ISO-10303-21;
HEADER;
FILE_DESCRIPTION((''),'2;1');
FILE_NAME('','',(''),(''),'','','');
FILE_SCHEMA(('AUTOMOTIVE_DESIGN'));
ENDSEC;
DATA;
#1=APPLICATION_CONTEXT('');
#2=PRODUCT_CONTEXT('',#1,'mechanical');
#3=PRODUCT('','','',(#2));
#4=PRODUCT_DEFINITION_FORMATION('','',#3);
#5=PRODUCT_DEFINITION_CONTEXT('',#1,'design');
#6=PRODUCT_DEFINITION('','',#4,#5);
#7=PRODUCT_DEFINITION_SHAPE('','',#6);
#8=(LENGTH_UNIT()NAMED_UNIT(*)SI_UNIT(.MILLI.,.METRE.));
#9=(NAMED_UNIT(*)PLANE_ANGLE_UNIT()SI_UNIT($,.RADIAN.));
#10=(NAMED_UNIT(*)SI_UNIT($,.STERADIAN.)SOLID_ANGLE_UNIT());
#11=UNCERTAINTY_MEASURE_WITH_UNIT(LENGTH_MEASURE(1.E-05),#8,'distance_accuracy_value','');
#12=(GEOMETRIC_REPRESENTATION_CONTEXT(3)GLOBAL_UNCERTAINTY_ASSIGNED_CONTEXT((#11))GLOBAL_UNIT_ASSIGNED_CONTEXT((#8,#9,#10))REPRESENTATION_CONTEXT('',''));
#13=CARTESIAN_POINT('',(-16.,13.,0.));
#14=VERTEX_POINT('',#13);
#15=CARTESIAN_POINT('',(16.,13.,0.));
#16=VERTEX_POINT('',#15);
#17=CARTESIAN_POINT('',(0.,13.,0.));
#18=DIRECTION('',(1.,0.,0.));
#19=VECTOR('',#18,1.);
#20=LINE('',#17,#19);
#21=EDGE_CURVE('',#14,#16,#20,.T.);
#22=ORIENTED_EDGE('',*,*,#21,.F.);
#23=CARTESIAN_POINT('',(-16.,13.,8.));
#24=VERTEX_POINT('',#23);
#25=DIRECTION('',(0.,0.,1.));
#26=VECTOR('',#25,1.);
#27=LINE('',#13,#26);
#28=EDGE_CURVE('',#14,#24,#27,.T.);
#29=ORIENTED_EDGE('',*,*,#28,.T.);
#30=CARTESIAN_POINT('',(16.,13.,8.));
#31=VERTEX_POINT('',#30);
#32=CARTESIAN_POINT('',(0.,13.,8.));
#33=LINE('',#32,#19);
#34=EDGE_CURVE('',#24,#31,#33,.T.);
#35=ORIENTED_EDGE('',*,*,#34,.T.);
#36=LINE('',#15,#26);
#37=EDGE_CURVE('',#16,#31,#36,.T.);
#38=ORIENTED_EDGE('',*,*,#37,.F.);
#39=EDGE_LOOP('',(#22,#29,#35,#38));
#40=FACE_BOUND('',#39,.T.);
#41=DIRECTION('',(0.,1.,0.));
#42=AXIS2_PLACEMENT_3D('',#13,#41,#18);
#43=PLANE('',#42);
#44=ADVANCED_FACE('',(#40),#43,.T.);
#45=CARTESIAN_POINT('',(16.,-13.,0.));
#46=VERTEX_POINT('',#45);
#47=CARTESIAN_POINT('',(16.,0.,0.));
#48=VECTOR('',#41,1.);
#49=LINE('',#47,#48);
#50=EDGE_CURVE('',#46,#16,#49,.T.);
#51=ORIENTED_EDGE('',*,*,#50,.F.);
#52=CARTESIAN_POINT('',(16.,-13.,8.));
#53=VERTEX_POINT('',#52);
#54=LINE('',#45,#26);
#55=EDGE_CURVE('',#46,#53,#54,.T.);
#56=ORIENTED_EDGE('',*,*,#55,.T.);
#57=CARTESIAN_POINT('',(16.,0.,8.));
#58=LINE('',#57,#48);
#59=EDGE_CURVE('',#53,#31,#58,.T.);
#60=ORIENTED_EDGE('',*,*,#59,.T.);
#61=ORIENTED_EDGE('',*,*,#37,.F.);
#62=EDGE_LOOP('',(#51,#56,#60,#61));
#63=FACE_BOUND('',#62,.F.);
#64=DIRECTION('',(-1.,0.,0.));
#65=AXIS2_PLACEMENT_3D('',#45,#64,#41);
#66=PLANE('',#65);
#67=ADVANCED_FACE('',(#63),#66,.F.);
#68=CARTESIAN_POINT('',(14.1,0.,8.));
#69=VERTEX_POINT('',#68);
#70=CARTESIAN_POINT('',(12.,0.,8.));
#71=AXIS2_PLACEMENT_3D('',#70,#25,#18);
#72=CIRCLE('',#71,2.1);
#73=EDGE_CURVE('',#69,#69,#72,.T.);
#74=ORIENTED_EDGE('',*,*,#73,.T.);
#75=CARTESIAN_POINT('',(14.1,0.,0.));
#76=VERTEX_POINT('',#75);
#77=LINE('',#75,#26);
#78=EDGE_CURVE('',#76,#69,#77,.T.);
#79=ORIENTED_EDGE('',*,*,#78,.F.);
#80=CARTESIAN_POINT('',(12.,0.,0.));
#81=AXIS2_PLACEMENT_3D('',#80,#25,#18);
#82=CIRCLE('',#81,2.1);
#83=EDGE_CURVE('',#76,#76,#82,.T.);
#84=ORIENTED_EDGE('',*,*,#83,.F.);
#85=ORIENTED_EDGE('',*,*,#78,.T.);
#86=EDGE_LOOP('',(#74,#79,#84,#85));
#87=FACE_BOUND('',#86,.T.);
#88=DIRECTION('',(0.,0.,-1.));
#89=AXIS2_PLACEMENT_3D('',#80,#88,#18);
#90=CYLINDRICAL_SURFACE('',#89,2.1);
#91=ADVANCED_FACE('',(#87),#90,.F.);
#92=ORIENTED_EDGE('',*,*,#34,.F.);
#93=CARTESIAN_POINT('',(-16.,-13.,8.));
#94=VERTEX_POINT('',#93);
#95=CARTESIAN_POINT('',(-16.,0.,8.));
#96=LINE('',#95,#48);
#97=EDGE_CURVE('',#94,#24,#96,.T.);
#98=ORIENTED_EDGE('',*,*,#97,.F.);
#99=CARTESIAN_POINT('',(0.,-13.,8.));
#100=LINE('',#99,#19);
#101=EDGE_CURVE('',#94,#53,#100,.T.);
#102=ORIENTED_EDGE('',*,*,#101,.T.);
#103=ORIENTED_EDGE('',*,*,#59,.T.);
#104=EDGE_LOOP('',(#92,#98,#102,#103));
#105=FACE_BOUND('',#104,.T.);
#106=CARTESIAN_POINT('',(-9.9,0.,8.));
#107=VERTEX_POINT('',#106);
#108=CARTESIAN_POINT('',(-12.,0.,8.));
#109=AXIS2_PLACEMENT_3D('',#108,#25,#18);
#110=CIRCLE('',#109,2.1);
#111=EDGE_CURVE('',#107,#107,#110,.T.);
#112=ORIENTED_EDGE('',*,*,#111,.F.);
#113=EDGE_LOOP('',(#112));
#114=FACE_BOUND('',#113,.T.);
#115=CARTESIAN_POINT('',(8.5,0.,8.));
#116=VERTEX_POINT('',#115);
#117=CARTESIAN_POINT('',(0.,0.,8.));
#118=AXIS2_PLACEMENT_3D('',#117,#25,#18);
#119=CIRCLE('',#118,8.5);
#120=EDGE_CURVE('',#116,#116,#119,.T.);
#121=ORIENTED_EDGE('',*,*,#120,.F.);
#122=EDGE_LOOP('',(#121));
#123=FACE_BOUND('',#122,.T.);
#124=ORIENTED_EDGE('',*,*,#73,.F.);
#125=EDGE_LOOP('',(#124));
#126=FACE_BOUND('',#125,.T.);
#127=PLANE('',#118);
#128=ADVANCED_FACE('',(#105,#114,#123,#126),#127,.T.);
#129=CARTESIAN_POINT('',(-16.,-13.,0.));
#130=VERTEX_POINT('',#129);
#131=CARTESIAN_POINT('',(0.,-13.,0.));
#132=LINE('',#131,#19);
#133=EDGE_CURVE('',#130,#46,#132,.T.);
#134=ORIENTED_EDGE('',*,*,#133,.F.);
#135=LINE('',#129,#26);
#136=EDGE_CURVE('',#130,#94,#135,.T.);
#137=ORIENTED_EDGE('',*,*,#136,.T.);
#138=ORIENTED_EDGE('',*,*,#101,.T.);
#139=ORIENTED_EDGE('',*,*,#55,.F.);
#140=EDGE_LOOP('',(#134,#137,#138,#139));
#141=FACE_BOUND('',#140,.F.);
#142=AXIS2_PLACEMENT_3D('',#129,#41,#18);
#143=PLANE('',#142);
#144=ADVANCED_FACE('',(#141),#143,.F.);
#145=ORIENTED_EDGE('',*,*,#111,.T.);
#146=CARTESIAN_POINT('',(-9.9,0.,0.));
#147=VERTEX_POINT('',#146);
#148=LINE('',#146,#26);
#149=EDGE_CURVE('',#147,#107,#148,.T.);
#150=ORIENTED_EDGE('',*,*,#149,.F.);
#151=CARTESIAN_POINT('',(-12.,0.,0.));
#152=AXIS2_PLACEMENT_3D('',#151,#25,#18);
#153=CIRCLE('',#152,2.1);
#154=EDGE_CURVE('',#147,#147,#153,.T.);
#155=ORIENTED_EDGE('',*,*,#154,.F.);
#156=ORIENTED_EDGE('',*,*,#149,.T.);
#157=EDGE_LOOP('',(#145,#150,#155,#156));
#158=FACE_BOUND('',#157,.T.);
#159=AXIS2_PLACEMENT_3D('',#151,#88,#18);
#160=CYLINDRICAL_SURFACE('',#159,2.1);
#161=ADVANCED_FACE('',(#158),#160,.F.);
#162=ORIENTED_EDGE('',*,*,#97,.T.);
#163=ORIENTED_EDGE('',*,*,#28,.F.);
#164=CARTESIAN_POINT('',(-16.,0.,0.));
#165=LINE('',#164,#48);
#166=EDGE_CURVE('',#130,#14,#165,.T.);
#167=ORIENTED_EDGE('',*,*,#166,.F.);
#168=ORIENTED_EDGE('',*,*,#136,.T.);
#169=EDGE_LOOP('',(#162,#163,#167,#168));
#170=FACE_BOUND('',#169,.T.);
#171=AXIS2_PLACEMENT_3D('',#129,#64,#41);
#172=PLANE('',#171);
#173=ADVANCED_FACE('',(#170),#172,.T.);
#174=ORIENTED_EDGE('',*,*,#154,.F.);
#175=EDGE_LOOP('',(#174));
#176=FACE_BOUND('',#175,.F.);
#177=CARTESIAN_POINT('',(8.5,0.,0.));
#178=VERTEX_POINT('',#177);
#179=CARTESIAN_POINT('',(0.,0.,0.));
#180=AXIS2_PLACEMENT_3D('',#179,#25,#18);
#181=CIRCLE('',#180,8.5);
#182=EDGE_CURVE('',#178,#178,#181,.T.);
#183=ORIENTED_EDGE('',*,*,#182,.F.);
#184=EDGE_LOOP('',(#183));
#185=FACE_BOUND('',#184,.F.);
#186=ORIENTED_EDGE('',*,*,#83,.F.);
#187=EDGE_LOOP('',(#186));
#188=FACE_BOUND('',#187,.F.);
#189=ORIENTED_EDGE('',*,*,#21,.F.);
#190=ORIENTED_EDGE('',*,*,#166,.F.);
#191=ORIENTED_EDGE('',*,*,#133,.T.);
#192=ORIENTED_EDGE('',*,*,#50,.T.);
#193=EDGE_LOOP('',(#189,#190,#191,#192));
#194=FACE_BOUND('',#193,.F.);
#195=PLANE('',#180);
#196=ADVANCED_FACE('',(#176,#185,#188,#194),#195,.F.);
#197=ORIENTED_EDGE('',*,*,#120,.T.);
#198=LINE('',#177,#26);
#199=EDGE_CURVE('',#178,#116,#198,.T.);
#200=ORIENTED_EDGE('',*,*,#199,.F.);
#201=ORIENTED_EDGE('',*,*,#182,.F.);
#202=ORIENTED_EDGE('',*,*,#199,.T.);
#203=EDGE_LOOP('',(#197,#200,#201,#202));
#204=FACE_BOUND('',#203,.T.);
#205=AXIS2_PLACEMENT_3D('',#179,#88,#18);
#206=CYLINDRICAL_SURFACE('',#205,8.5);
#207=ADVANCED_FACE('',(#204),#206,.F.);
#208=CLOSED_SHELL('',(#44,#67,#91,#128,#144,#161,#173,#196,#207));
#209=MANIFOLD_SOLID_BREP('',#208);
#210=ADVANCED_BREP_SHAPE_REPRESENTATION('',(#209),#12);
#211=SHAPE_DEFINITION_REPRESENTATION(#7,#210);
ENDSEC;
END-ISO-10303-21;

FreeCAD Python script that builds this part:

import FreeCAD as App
import Part
import Sketcher

V = App.Vector

doc = App.newDocument("Part")
body = doc.addObject("PartDesign::Body", "Body")

# Sketch on XY plane
sketch1 = body.newObject("Sketcher::SketchObject", "Sketch")
sketch1.AttachmentSupport = (doc.getObject("XY_Plane"), [""])
sketch1.MapMode = "FlatFace"
sketch1.addGeometry([
    Part.LineSegment(V(-16, 13, 0), V(-16, -13, 0)),  # 0
    Part.LineSegment(V(-16, -13, 0), V(16, -13, 0)),  # 1
    Part.LineSegment(V(16, -13, 0), V(16, 13, 0)),  # 2
    Part.LineSegment(V(16, 13, 0), V(-16, 13, 0)),  # 3
    Part.Circle(V(-12, 0, 0), V(0, 0, 1), 2.1),  # 4
    Part.Circle(V(0, 0, 0), V(0, 0, 1), 8.5),  # 5
    Part.Circle(V(12, 0, 0), V(0, 0, 1), 2.1),  # 6
], False)
sketch1.addConstraint([
    Sketcher.Constraint("Coincident", 0, 2, 1, 1),
    Sketcher.Constraint("Coincident", 1, 2, 2, 1),
    Sketcher.Constraint("Coincident", 2, 2, 3, 1),
    Sketcher.Constraint("Coincident", 3, 2, 0, 1),
    Sketcher.Constraint("Vertical", 0),
    Sketcher.Constraint("Horizontal", 1),
    Sketcher.Constraint("Vertical", 2),
    Sketcher.Constraint("Horizontal", 3),
    Sketcher.Constraint("Coincident", 5, 3, -1, 1),
    Sketcher.Constraint("Equal", 4, 6),
    Sketcher.Constraint("Symmetric", 4, 3, 6, 3, -1, 1),
    Sketcher.Constraint("Symmetric", 0, 2, 2, 2, -1, 1),
    Sketcher.Constraint("PointOnObject", 4, 3, -1),
    Sketcher.Constraint("Diameter", 5, 17.0),
    Sketcher.Constraint("Diameter", 4, 4.2),
    Sketcher.Constraint("DistanceX", 1, 1, 1, 2, 32.0),
    Sketcher.Constraint("DistanceY", 0, 2, 0, 1, 26.0),
    Sketcher.Constraint("DistanceX", 4, 3, -1, 1, 12.0),
])
pad1 = body.newObject("PartDesign::Pad", "Pad")
pad1.Profile = sketch1
pad1.Length = 8

doc.recompute()
